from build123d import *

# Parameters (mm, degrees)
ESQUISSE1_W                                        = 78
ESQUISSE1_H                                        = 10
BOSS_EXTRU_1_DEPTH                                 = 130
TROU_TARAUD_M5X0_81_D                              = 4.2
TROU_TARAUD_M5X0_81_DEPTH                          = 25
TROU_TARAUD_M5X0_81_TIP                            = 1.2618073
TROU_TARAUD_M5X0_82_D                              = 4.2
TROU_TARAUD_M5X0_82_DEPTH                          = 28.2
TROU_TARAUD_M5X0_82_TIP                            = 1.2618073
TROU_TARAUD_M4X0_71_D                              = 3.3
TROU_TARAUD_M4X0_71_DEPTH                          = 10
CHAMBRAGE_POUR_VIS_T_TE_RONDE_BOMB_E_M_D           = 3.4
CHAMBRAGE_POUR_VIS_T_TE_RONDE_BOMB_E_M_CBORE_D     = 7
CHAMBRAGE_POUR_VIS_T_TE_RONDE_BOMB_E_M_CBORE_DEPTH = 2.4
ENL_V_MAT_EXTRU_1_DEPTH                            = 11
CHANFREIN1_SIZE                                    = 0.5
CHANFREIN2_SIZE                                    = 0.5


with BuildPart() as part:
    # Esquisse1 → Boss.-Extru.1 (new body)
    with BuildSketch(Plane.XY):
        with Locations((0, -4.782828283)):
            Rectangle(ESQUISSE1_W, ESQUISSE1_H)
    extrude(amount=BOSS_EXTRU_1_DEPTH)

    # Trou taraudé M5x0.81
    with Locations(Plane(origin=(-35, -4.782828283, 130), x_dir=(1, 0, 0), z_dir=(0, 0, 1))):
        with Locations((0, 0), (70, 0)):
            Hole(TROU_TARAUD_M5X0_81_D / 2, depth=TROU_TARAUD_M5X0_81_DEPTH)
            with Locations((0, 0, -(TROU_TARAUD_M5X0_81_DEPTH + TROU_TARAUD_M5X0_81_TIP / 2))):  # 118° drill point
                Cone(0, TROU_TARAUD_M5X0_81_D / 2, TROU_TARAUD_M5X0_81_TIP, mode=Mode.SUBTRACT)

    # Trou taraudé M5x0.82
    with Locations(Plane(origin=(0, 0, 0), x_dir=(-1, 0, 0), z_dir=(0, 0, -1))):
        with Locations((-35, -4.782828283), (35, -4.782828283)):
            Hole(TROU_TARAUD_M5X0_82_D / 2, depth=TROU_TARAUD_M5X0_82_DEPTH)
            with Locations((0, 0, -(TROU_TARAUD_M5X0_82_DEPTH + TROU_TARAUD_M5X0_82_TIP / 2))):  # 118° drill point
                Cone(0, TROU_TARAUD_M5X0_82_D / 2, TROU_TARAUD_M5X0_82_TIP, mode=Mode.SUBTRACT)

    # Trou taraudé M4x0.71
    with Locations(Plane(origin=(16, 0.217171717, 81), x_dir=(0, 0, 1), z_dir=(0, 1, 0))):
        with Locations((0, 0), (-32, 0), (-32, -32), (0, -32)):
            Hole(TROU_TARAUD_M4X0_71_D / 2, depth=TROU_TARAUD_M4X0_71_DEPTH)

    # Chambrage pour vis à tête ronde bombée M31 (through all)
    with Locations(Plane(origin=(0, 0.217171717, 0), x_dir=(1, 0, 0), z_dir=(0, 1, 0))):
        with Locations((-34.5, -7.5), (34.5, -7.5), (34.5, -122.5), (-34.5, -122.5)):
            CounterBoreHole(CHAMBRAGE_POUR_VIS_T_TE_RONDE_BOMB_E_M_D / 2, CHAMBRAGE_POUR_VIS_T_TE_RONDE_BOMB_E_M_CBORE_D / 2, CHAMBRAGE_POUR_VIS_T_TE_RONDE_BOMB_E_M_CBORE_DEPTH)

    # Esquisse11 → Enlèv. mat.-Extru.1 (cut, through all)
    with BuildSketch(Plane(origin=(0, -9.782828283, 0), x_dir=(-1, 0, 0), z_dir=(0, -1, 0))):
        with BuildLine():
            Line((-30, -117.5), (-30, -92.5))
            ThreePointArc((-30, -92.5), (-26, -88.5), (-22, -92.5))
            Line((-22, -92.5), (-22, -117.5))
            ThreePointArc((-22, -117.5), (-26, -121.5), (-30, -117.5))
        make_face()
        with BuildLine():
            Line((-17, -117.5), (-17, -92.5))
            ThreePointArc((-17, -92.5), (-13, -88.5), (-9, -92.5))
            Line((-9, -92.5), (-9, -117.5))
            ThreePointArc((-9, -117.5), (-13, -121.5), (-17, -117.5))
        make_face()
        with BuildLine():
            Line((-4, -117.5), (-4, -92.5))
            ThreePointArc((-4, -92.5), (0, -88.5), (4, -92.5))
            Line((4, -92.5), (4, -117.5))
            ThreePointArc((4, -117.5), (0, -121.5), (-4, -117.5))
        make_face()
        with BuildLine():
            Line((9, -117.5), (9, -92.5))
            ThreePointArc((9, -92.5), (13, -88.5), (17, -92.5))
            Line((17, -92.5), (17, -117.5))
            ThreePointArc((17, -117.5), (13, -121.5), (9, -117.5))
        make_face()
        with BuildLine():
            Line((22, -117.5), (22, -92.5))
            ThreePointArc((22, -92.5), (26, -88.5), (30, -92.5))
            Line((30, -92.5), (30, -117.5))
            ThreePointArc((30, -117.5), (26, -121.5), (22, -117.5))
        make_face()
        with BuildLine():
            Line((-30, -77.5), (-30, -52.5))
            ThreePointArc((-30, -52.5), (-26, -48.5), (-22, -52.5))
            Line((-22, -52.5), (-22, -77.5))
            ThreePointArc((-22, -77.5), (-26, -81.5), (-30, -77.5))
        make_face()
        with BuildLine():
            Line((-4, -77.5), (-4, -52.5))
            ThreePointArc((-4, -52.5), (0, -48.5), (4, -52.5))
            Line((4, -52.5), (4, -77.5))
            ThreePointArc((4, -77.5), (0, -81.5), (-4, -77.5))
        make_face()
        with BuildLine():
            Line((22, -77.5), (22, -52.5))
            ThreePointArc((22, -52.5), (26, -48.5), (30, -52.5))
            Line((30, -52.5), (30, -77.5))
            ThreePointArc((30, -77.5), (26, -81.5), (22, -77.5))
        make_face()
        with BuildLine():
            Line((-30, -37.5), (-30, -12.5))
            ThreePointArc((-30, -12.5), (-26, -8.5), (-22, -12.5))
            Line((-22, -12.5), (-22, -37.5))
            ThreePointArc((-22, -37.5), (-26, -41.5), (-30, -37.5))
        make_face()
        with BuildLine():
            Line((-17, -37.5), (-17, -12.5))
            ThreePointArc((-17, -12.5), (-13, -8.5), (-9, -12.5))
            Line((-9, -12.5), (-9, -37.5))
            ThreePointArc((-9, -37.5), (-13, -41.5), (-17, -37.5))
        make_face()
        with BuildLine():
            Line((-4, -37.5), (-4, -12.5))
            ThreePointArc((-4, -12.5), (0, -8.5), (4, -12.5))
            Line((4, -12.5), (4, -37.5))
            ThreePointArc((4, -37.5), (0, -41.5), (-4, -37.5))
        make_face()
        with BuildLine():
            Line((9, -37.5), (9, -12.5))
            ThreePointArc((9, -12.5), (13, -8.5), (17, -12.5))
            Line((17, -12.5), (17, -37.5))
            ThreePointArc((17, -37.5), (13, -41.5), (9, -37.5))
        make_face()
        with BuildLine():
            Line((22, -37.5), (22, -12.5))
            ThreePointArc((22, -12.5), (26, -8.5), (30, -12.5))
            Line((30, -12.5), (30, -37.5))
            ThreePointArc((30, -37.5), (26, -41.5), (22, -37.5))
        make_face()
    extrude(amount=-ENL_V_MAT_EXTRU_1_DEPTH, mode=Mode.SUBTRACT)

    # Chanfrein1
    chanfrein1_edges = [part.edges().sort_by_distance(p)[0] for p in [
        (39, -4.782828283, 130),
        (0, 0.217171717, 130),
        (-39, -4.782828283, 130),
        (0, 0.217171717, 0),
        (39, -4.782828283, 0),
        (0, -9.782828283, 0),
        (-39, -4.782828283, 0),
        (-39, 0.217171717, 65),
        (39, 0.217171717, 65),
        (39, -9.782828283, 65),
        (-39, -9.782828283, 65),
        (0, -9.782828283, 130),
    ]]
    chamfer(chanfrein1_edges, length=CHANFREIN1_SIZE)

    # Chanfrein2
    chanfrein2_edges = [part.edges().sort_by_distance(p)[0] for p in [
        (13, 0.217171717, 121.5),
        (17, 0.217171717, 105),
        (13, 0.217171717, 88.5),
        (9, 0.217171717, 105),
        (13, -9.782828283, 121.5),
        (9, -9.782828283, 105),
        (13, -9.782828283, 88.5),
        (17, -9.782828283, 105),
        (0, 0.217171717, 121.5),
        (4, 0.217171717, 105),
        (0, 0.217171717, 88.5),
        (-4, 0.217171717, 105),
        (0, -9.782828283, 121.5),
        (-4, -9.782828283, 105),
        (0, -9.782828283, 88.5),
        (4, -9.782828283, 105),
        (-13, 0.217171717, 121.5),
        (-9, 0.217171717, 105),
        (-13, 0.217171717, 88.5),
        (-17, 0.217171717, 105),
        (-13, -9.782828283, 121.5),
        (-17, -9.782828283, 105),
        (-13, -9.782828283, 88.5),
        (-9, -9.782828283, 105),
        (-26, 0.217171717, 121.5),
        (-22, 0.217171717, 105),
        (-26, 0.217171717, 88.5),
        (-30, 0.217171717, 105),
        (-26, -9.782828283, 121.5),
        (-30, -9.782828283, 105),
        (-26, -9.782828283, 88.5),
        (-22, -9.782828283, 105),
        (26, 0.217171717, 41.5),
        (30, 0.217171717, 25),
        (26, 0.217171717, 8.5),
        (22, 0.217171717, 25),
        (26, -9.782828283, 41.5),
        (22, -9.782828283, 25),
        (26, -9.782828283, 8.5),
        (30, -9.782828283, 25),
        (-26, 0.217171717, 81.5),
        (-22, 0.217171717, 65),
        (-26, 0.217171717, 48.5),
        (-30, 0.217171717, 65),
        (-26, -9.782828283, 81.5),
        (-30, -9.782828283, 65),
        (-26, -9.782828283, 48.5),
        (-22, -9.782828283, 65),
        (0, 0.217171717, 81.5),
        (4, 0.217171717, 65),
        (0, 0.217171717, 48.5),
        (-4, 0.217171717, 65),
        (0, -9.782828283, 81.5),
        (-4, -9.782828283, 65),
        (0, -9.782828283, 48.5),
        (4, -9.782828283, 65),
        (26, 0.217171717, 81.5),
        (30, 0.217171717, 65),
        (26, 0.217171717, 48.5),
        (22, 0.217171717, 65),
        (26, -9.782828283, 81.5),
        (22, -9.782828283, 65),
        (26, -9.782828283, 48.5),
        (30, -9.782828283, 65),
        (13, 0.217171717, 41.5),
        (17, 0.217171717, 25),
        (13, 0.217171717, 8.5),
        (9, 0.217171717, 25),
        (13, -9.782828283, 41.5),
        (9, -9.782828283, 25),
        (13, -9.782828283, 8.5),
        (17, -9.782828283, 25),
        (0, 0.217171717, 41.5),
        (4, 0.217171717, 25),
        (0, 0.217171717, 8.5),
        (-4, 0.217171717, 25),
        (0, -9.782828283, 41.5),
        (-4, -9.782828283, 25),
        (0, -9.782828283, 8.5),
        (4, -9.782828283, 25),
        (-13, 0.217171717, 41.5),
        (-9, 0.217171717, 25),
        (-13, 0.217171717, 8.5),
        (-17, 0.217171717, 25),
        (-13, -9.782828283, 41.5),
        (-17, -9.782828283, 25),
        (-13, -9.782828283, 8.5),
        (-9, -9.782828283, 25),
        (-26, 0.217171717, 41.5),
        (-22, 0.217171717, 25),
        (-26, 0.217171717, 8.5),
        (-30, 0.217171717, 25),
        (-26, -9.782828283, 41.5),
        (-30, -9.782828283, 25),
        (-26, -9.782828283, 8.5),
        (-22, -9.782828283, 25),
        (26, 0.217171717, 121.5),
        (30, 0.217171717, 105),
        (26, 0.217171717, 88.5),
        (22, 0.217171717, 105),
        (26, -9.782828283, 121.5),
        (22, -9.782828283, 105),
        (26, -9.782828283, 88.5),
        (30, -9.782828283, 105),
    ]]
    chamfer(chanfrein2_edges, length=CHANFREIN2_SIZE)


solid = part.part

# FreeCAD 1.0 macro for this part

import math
import FreeCAD as App
import Part
import Sketcher
from FreeCAD import Vector


def edges_at(feature, points):
    """Names of the edges that pass closest to the given points."""
    edges = feature.Shape.Edges
    near = lambda p: min(range(len(edges)), key=lambda i: edges[i].distToShape(Part.Vertex(*p))[0])
    return sorted({f"Edge{near(p) + 1}" for p in points})


def add_polygon(sketch, points):
    """Adds a closed chain of lines whose ends are joined by coincident constraints."""
    first, n = sketch.GeometryCount, len(points)
    for a, b in zip(points, points[1:] + points[:1]):
        sketch.addGeometry(Part.LineSegment(App.Vector(*a, 0), App.Vector(*b, 0)), False)
    for i in range(n):
        sketch.addConstraint(Sketcher.Constraint("Coincident", first + i, 2, first + (i + 1) % n, 1))

doc = App.newDocument("Part")
params = doc.addObject("Spreadsheet::Sheet", "Params")
for row, (alias, value) in enumerate([
    ("sketch1_width", "78 mm"),
    ("sketch1_height", "10 mm"),
    ("pad1_length", "130 mm"),
    ("sketch2_diameter", "4.2 mm"),
    ("hole_diameter", "4.2 mm"),
    ("hole_depth", "25 mm"),
    ("sketch3_diameter", "4.2 mm"),
    ("hole2_diameter", "4.2 mm"),
    ("hole2_depth", "28.2 mm"),
    ("sketch4_diameter", "3.3 mm"),
    ("hole3_diameter", "3.3 mm"),
    ("hole3_depth", "10 mm"),
    ("sketch5_diameter", "3.4 mm"),
    ("hole4_diameter", "3.4 mm"),
    ("hole4_cbore_diameter", "7 mm"),
    ("hole4_cbore_depth", "2.4 mm"),
    ("sketch6_radius", "4 mm"),
    ("sketch6_height", "25 mm"),
    ("chamfer_size", "0.5 mm"),
    ("chamfer2_size", "0.5 mm"),
], start=1):
    params.set(f"A{row}", alias)
    params.set(f"B{row}", "=" + value)
    params.setAlias(f"B{row}", alias)

body = doc.addObject("PartDesign::Body", "Body")

sketch1 = body.newObject("Sketcher::SketchObject", "Sketch")
sketch1.AttachmentSupport = (doc.getObject("XY_Plane"), [""])
sketch1.MapMode = "FlatFace"
add_polygon(sketch1, [(-39, 0), (-39, -10), (39, -10), (39, 0)])
sketch1.addConstraint([
    Sketcher.Constraint("Vertical", 0),
    Sketcher.Constraint("Horizontal", 1),
    Sketcher.Constraint("Vertical", 2),
    Sketcher.Constraint("Horizontal", 3),
    Sketcher.Constraint("DistanceX", 1, 1, 1, 2, 78.0),
    Sketcher.Constraint("DistanceY", 0, 2, 0, 1, 10.0),
    Sketcher.Constraint("DistanceX", 0, 2, -1, 1, 39.0),
    Sketcher.Constraint("DistanceY", 0, 2, -1, 1, 9.782828),
])
sketch1.setExpression("Constraints[8]", "Params.sketch1_width")
sketch1.setExpression("Constraints[9]", "Params.sketch1_height")
pad1 = body.newObject("PartDesign::Pad", "Pad")
pad1.Profile = sketch1
pad1.setExpression("Length", "Params.pad1_length")

sketch2 = body.newObject("Sketcher::SketchObject", "Sketch001")
sketch2.AttachmentSupport = (doc.getObject("XY_Plane"), [""])
sketch2.MapMode = "FlatFace"
sketch2.AttachmentOffset = App.Placement(Vector(0, 0, 130), App.Rotation())
sketch2.addGeometry([
    Part.Circle(Vector(-35, -4.8, 0), Vector(0, 0, 1), 2.1),
    Part.Circle(Vector(35, -4.8, 0), Vector(0, 0, 1), 2.1),
], False)
sketch2.addConstraint([
    Sketcher.Constraint("Equal", 0, 1),
    Sketcher.Constraint("Symmetric", 0, 3, 1, 3, -2),
    Sketcher.Constraint("Diameter", 0, 4.2),
    Sketcher.Constraint("DistanceX", 0, 3, -1, 1, 35.0),
    Sketcher.Constraint("DistanceY", 0, 3, -1, 1, 4.782828),
])
sketch2.setExpression("Constraints[2]", "Params.sketch2_diameter")
doc.recompute()
hole = body.newObject("PartDesign::Hole", "Hole")
hole.Profile = sketch2
hole.ThreadType = "None"
hole.setExpression("Diameter", "Params.hole_diameter")
hole.DepthType = "Dimension"
hole.setExpression("Depth", "Params.hole_depth")
hole.DrillPoint = "Angled"
hole.DrillPointAngle = 118

sketch3 = body.newObject("Sketcher::SketchObject", "Sketch002")
sketch3.AttachmentSupport = (doc.getObject("XY_Plane"), [""])
sketch3.MapMode = "FlatFace"
sketch3.addGeometry([
    Part.Circle(Vector(35, -4.8, 0), Vector(0, 0, 1), 2.1),
    Part.Circle(Vector(-35, -4.8, 0), Vector(0, 0, 1), 2.1),
], False)
sketch3.addConstraint([
    Sketcher.Constraint("Equal", 0, 1),
    Sketcher.Constraint("Symmetric", 0, 3, 1, 3, -2),
    Sketcher.Constraint("Diameter", 0, 4.2),
    Sketcher.Constraint("DistanceX", -1, 1, 0, 3, 35.0),
    Sketcher.Constraint("DistanceY", 0, 3, -1, 1, 4.782828),
])
sketch3.setExpression("Constraints[2]", "Params.sketch3_diameter")
doc.recompute()
hole2 = body.newObject("PartDesign::Hole", "Hole001")
hole2.Profile = sketch3
hole2.ThreadType = "None"
hole2.setExpression("Diameter", "Params.hole2_diameter")
hole2.DepthType = "Dimension"
hole2.setExpression("Depth", "Params.hole2_depth")
hole2.DrillPoint = "Angled"
hole2.DrillPointAngle = 118
hole2.Reversed = True

sketch4 = body.newObject("Sketcher::SketchObject", "Sketch003")
sketch4.AttachmentSupport = (doc.getObject("XZ_Plane"), [""])
sketch4.MapMode = "FlatFace"
sketch4.AttachmentOffset = App.Placement(Vector(0, 0, -0.217172), App.Rotation())
sketch4.addGeometry([
    Part.Circle(Vector(16, 81, 0), Vector(0, 0, 1), 1.6),
    Part.Circle(Vector(16, 49, 0), Vector(0, 0, 1), 1.6),
    Part.Circle(Vector(-16, 49, 0), Vector(0, 0, 1), 1.6),
    Part.Circle(Vector(-16, 81, 0), Vector(0, 0, 1), 1.6),
], False)
sketch4.addConstraint([
    Sketcher.Constraint("Equal", 0, 1),
    Sketcher.Constraint("Equal", 1, 2),
    Sketcher.Constraint("Equal", 2, 3),
    Sketcher.Constraint("Symmetric", 1, 3, 2, 3, -2),
    Sketcher.Constraint("Symmetric", 0, 3, 3, 3, -2),
    Sketcher.Constraint("Vertical", 0, 3, 1, 3),
    Sketcher.Constraint("Diameter", 0, 3.3),
    Sketcher.Constraint("DistanceX", -1, 1, 0, 3, 16.0),
    Sketcher.Constraint("DistanceY", -1, 1, 0, 3, 81.0),
    Sketcher.Constraint("DistanceY", -1, 1, 1, 3, 49.0),
])
sketch4.setExpression("Constraints[6]", "Params.sketch4_diameter")
doc.recompute()
hole3 = body.newObject("PartDesign::Hole", "Hole002")
hole3.Profile = sketch4
hole3.ThreadType = "None"
hole3.setExpression("Diameter", "Params.hole3_diameter")
hole3.DepthType = "Dimension"
hole3.setExpression("Depth", "Params.hole3_depth")
hole3.DrillPoint = "Flat"
hole3.Reversed = True

sketch5 = body.newObject("Sketcher::SketchObject", "Sketch004")
sketch5.AttachmentSupport = (doc.getObject("XZ_Plane"), [""])
sketch5.MapMode = "FlatFace"
sketch5.AttachmentOffset = App.Placement(Vector(0, 0, -0.217172), App.Rotation())
sketch5.addGeometry([
    Part.Circle(Vector(-34.5, 7.5, 0), Vector(0, 0, 1), 1.7),
    Part.Circle(Vector(34.5, 7.5, 0), Vector(0, 0, 1), 1.7),
    Part.Circle(Vector(34.5, 122.5, 0), Vector(0, 0, 1), 1.7),
    Part.Circle(Vector(-34.5, 122.5, 0), Vector(0, 0, 1), 1.7),
], False)
sketch5.addConstraint([
    Sketcher.Constraint("Equal", 0, 1),
    Sketcher.Constraint("Equal", 1, 2),
    Sketcher.Constraint("Equal", 2, 3),
    Sketcher.Constraint("Symmetric", 0, 3, 1, 3, -2),
    Sketcher.Constraint("Symmetric", 2, 3, 3, 3, -2),
    Sketcher.Constraint("Vertical", 1, 3, 2, 3),
    Sketcher.Constraint("Diameter", 0, 3.4),
    Sketcher.Constraint("DistanceX", 0, 3, 1, 3, 69.0),
    Sketcher.Constraint("DistanceY", 1, 3, 2, 3, 115.0),
    Sketcher.Constraint("DistanceY", -1, 1, 0, 3, 7.5),
])
sketch5.setExpression("Constraints[6]", "Params.sketch5_diameter")
doc.recompute()
hole4 = body.newObject("PartDesign::Hole", "Hole003")
hole4.Profile = sketch5
hole4.ThreadType = "None"
hole4.setExpression("Diameter", "Params.hole4_diameter")
hole4.DepthType = "ThroughAll"
hole4.HoleCutType = "Counterbore"
hole4.setExpression("HoleCutDiameter", "Params.hole4_cbore_diameter")
hole4.setExpression("HoleCutDepth", "Params.hole4_cbore_depth")
hole4.Reversed = True

sketch6 = body.newObject("Sketcher::SketchObject", "Sketch005")
sketch6.AttachmentSupport = (doc.getObject("XZ_Plane"), [""])
sketch6.MapMode = "FlatFace"
sketch6.AttachmentOffset = App.Placement(Vector(0, 0, 9.782828), App.Rotation())
sketch6.addGeometry([
    Part.LineSegment(Vector(30, 92.5, 0), Vector(30, 117.5, 0)),
    Part.ArcOfCircle(Part.Circle(Vector(26, 117.5, 0), Vector(0, 0, 1), 4), math.radians(0), math.radians(180)),
    Part.LineSegment(Vector(22, 117.5, 0), Vector(22, 92.5, 0)),
    Part.ArcOfCircle(Part.Circle(Vector(26, 92.5, 0), Vector(0, 0, 1), 4), math.radians(180), math.radians(360)),
    Part.LineSegment(Vector(17, 92.5, 0), Vector(17, 117.5, 0)),
    Part.ArcOfCircle(Part.Circle(Vector(13, 117.5, 0), Vector(0, 0, 1), 4), math.radians(0), math.radians(180)),
    Part.LineSegment(Vector(9, 117.5, 0), Vector(9, 92.5, 0)),
    Part.ArcOfCircle(Part.Circle(Vector(13, 92.5, 0), Vector(0, 0, 1), 4), math.radians(180), math.radians(360)),
    Part.LineSegment(Vector(4, 92.5, 0), Vector(4, 117.5, 0)),
    Part.ArcOfCircle(Part.Circle(Vector(0, 117.5, 0), Vector(0, 0, 1), 4), math.radians(0), math.radians(180)),
    Part.LineSegment(Vector(-4, 117.5, 0), Vector(-4, 92.5, 0)),
    Part.ArcOfCircle(Part.Circle(Vector(0, 92.5, 0), Vector(0, 0, 1), 4), math.radians(180), math.radians(360)),
    Part.LineSegment(Vector(-9, 92.5, 0), Vector(-9, 117.5, 0)),
    Part.ArcOfCircle(Part.Circle(Vector(-13, 117.5, 0), Vector(0, 0, 1), 4), math.radians(0), math.radians(180)),
    Part.LineSegment(Vector(-17, 117.5, 0), Vector(-17, 92.5, 0)),
    Part.ArcOfCircle(Part.Circle(Vector(-13, 92.5, 0), Vector(0, 0, 1), 4), math.radians(180), math.radians(360)),
    Part.LineSegment(Vector(-22, 92.5, 0), Vector(-22, 117.5, 0)),
    Part.ArcOfCircle(Part.Circle(Vector(-26, 117.5, 0), Vector(0, 0, 1), 4), math.radians(0), math.radians(180)),
    Part.LineSegment(Vector(-30, 117.5, 0), Vector(-30, 92.5, 0)),
    Part.ArcOfCircle(Part.Circle(Vector(-26, 92.5, 0), Vector(0, 0, 1), 4), math.radians(180), math.radians(360)),
    Part.LineSegment(Vector(30, 52.5, 0), Vector(30, 77.5, 0)),
    Part.ArcOfCircle(Part.Circle(Vector(26, 77.5, 0), Vector(0, 0, 1), 4), math.radians(0), math.radians(180)),
    Part.LineSegment(Vector(22, 77.5, 0), Vector(22, 52.5, 0)),
    Part.ArcOfCircle(Part.Circle(Vector(26, 52.5, 0), Vector(0, 0, 1), 4), math.radians(180), math.radians(360)),
    Part.LineSegment(Vector(4, 52.5, 0), Vector(4, 77.5, 0)),
    Part.ArcOfCircle(Part.Circle(Vector(0, 77.5, 0), Vector(0, 0, 1), 4), math.radians(0), math.radians(180)),
    Part.LineSegment(Vector(-4, 77.5, 0), Vector(-4, 52.5, 0)),
    Part.ArcOfCircle(Part.Circle(Vector(0, 52.5, 0), Vector(0, 0, 1), 4), math.radians(180), math.radians(360)),
    Part.LineSegment(Vector(-22, 52.5, 0), Vector(-22, 77.5, 0)),
    Part.ArcOfCircle(Part.Circle(Vector(-26, 77.5, 0), Vector(0, 0, 1), 4), math.radians(0), math.radians(180)),
    Part.LineSegment(Vector(-30, 77.5, 0), Vector(-30, 52.5, 0)),
    Part.ArcOfCircle(Part.Circle(Vector(-26, 52.5, 0), Vector(0, 0, 1), 4), math.radians(180), math.radians(360)),
    Part.LineSegment(Vector(30, 12.5, 0), Vector(30, 37.5, 0)),
    Part.ArcOfCircle(Part.Circle(Vector(26, 37.5, 0), Vector(0, 0, 1), 4), math.radians(0), math.radians(180)),
    Part.LineSegment(Vector(22, 37.5, 0), Vector(22, 12.5, 0)),
    Part.ArcOfCircle(Part.Circle(Vector(26, 12.5, 0), Vector(0, 0, 1), 4), math.radians(180), math.radians(360)),
    Part.LineSegment(Vector(17, 12.5, 0), Vector(17, 37.5, 0)),
    Part.ArcOfCircle(Part.Circle(Vector(13, 37.5, 0), Vector(0, 0, 1), 4), math.radians(0), math.radians(180)),
    Part.LineSegment(Vector(9, 37.5, 0), Vector(9, 12.5, 0)),
    Part.ArcOfCircle(Part.Circle(Vector(13, 12.5, 0), Vector(0, 0, 1), 4), math.radians(180), math.radians(360)),
    Part.LineSegment(Vector(4, 12.5, 0), Vector(4, 37.5, 0)),
    Part.ArcOfCircle(Part.Circle(Vector(0, 37.5, 0), Vector(0, 0, 1), 4), math.radians(0), math.radians(180)),
    Part.LineSegment(Vector(-4, 37.5, 0), Vector(-4, 12.5, 0)),
    Part.ArcOfCircle(Part.Circle(Vector(0, 12.5, 0), Vector(0, 0, 1), 4), math.radians(180), math.radians(360)),
    Part.LineSegment(Vector(-9, 12.5, 0), Vector(-9, 37.5, 0)),
    Part.ArcOfCircle(Part.Circle(Vector(-13, 37.5, 0), Vector(0, 0, 1), 4), math.radians(0), math.radians(180)),
    Part.LineSegment(Vector(-17, 37.5, 0), Vector(-17, 12.5, 0)),
    Part.ArcOfCircle(Part.Circle(Vector(-13, 12.5, 0), Vector(0, 0, 1), 4), math.radians(180), math.radians(360)),
    Part.LineSegment(Vector(-22, 12.5, 0), Vector(-22, 37.5, 0)),
    Part.ArcOfCircle(Part.Circle(Vector(-26, 37.5, 0), Vector(0, 0, 1), 4), math.radians(0), math.radians(180)),
    Part.LineSegment(Vector(-30, 37.5, 0), Vector(-30, 12.5, 0)),
    Part.ArcOfCircle(Part.Circle(Vector(-26, 12.5, 0), Vector(0, 0, 1), 4), math.radians(180), math.radians(360)),
], False)
sketch6.addConstraint([
    Sketcher.Constraint("Tangent", 0, 2, 1, 1),
    Sketcher.Constraint("Tangent", 1, 2, 2, 1),
    Sketcher.Constraint("Tangent", 2, 2, 3, 1),
    Sketcher.Constraint("Tangent", 3, 2, 0, 1),
    Sketcher.Constraint("Tangent", 4, 2, 5, 1),
    Sketcher.Constraint("Tangent", 5, 2, 6, 1),
    Sketcher.Constraint("Tangent", 6, 2, 7, 1),
    Sketcher.Constraint("Tangent", 7, 2, 4, 1),
    Sketcher.Constraint("Tangent", 8, 2, 9, 1),
    Sketcher.Constraint("Tangent", 9, 2, 10, 1),
    Sketcher.Constraint("Tangent", 10, 2, 11, 1),
    Sketcher.Constraint("Tangent", 11, 2, 8, 1),
    Sketcher.Constraint("Tangent", 12, 2, 13, 1),
    Sketcher.Constraint("Tangent", 13, 2, 14, 1),
    Sketcher.Constraint("Tangent", 14, 2, 15, 1),
    Sketcher.Constraint("Tangent", 15, 2, 12, 1),
    Sketcher.Constraint("Tangent", 16, 2, 17, 1),
    Sketcher.Constraint("Tangent", 17, 2, 18, 1),
    Sketcher.Constraint("Tangent", 18, 2, 19, 1),
    Sketcher.Constraint("Tangent", 19, 2, 16, 1),
    Sketcher.Constraint("Tangent", 20, 2, 21, 1),
    Sketcher.Constraint("Tangent", 21, 2, 22, 1),
    Sketcher.Constraint("Tangent", 22, 2, 23, 1),
    Sketcher.Constraint("Tangent", 23, 2, 20, 1),
    Sketcher.Constraint("Tangent", 24, 2, 25, 1),
    Sketcher.Constraint("Tangent", 25, 2, 26, 1),
    Sketcher.Constraint("Tangent", 26, 2, 27, 1),
    Sketcher.Constraint("Tangent", 27, 2, 24, 1),
    Sketcher.Constraint("Tangent", 28, 2, 29, 1),
    Sketcher.Constraint("Tangent", 29, 2, 30, 1),
    Sketcher.Constraint("Tangent", 30, 2, 31, 1),
    Sketcher.Constraint("Tangent", 31, 2, 28, 1),
    Sketcher.Constraint("Tangent", 32, 2, 33, 1),
    Sketcher.Constraint("Tangent", 33, 2, 34, 1),
    Sketcher.Constraint("Tangent", 34, 2, 35, 1),
    Sketcher.Constraint("Tangent", 35, 2, 32, 1),
    Sketcher.Constraint("Tangent", 36, 2, 37, 1),
    Sketcher.Constraint("Tangent", 37, 2, 38, 1),
    Sketcher.Constraint("Tangent", 38, 2, 39, 1),
    Sketcher.Constraint("Tangent", 39, 2, 36, 1),
    Sketcher.Constraint("Tangent", 40, 2, 41, 1),
    Sketcher.Constraint("Tangent", 41, 2, 42, 1),
    Sketcher.Constraint("Tangent", 42, 2, 43, 1),
    Sketcher.Constraint("Tangent", 43, 2, 40, 1),
    Sketcher.Constraint("Tangent", 44, 2, 45, 1),
    Sketcher.Constraint("Tangent", 45, 2, 46, 1),
    Sketcher.Constraint("Tangent", 46, 2, 47, 1),
    Sketcher.Constraint("Tangent", 47, 2, 44, 1),
    Sketcher.Constraint("Tangent", 48, 2, 49, 1),
    Sketcher.Constraint("Tangent", 49, 2, 50, 1),
    Sketcher.Constraint("Tangent", 50, 2, 51, 1),
    Sketcher.Constraint("Tangent", 51, 2, 48, 1),
    Sketcher.Constraint("Vertical", 0),
    Sketcher.Constraint("Vertical", 2),
    Sketcher.Constraint("Vertical", 4),
    Sketcher.Constraint("Vertical", 6),
    Sketcher.Constraint("Vertical", 8),
    Sketcher.Constraint("Vertical", 10),
    Sketcher.Constraint("Vertical", 12),
    Sketcher.Constraint("Vertical", 14),
    Sketcher.Constraint("Vertical", 16),
    Sketcher.Constraint("Vertical", 18),
    Sketcher.Constraint("Vertical", 20),
    Sketcher.Constraint("Vertical", 22),
    Sketcher.Constraint("Vertical", 24),
    Sketcher.Constraint("Vertical", 26),
    Sketcher.Constraint("Vertical", 28),
    Sketcher.Constraint("Vertical", 30),
    Sketcher.Constraint("Vertical", 32),
    Sketcher.Constraint("Vertical", 34),
    Sketcher.Constraint("Vertical", 36),
    Sketcher.Constraint("Vertical", 38),
    Sketcher.Constraint("Vertical", 40),
    Sketcher.Constraint("Vertical", 42),
    Sketcher.Constraint("Vertical", 44),
    Sketcher.Constraint("Vertical", 46),
    Sketcher.Constraint("Vertical", 48),
    Sketcher.Constraint("Vertical", 50),
    Sketcher.Constraint("Equal", 3, 5),
    Sketcher.Constraint("Equal", 7, 9),
    Sketcher.Constraint("Equal", 11, 13),
    Sketcher.Constraint("Equal", 15, 17),
    Sketcher.Constraint("Equal", 19, 21),
    Sketcher.Constraint("Equal", 23, 25),
    Sketcher.Constraint("Equal", 27, 29),
    Sketcher.Constraint("Equal", 31, 33),
    Sketcher.Constraint("Equal", 35, 37),
    Sketcher.Constraint("Equal", 39, 41),
    Sketcher.Constraint("Equal", 43, 45),
    Sketcher.Constraint("Equal", 47, 49),
    Sketcher.Constraint("Symmetric", 5, 3, 13, 3, -2),
    Sketcher.Constraint("Symmetric", 1, 3, 17, 3, -2),
    Sketcher.Constraint("Symmetric", 21, 3, 29, 3, -2),
    Sketcher.Constraint("Symmetric", 37, 3, 45, 3, -2),
    Sketcher.Constraint("Symmetric", 33, 3, 49, 3, -2),
    Sketcher.Constraint("PointOnObject", 9, 3, -2),
    Sketcher.Constraint("PointOnObject", 25, 3, -2),
    Sketcher.Constraint("PointOnObject", 41, 3, -2),
    Sketcher.Constraint("Horizontal", 1, 3, 5, 3),
    Sketcher.Constraint("Horizontal", 3, 3, 7, 3),
    Sketcher.Constraint("Horizontal", 5, 3, 9, 3),
    Sketcher.Constraint("Horizontal", 7, 3, 11, 3),
    Sketcher.Constraint("Horizontal", 11, 3, 15, 3),
    Sketcher.Constraint("Horizontal", 15, 3, 19, 3),
    Sketcher.Constraint("Horizontal", 21, 3, 25, 3),
    Sketcher.Constraint("Horizontal", 23, 3, 27, 3),
    Sketcher.Constraint("Horizontal", 27, 3, 31, 3),
    Sketcher.Constraint("Horizontal", 33, 3, 37, 3),
    Sketcher.Constraint("Horizontal", 35, 3, 39, 3),
    Sketcher.Constraint("Horizontal", 37, 3, 41, 3),
    Sketcher.Constraint("Horizontal", 39, 3, 43, 3),
    Sketcher.Constraint("Horizontal", 43, 3, 47, 3),
    Sketcher.Constraint("Horizontal", 47, 3, 51, 3),
    Sketcher.Constraint("Vertical", 3, 3, 21, 3),
    Sketcher.Constraint("Vertical", 23, 3, 33, 3),
    Sketcher.Constraint("Vertical", 7, 3, 37, 3),
    Sketcher.Constraint("Equal", 18, 20),
    Sketcher.Constraint("Equal", 30, 32),
    Sketcher.Constraint("Radius", 1, 4.0),
    Sketcher.Constraint("DistanceY", 0, 1, 0, 2, 25.0),
    Sketcher.Constraint("DistanceX", -1, 1, 1, 3, 26.0),
    Sketcher.Constraint("DistanceX", -1, 1, 5, 3, 13.0),
    Sketcher.Constraint("DistanceY", -1, 1, 1, 3, 117.5),
    Sketcher.Constraint("DistanceY", -1, 1, 21, 3, 77.5),
    Sketcher.Constraint("DistanceY", -1, 1, 33, 3, 37.5),
])
sketch6.setExpression("Constraints[118]", "Params.sketch6_radius")
sketch6.setExpression("Constraints[119]", "Params.sketch6_height")
pocket1 = body.newObject("PartDesign::Pocket", "Pocket")
pocket1.Profile = sketch6
pocket1.Type = "ThroughAll"
doc.recompute()

chamfer = body.newObject("PartDesign::Chamfer", "Chamfer")
chamfer.Base = (pocket1, edges_at(pocket1, [
    (39, -4.783, 130),
    (0, 0.217, 130),
    (-39, -4.783, 130),
    (0, 0.217, 0),
    (39, -4.783, 0),
    (0, -9.783, 0),
    (-39, -4.783, 0),
    (-39, 0.217, 65),
    (39, 0.217, 65),
    (39, -9.783, 65),
    (-39, -9.783, 65),
    (0, -9.783, 130),
]))
chamfer.setExpression("Size", "Params.chamfer_size")
doc.recompute()

chamfer2 = body.newObject("PartDesign::Chamfer", "Chamfer001")
chamfer2.Base = (chamfer, edges_at(chamfer, [
    (13, 0.217, 121.5),
    (17, 0.217, 105),
    (13, 0.217, 88.5),
    (9, 0.217, 105),
    (13, -9.783, 121.5),
    (9, -9.783, 105),
    (13, -9.783, 88.5),
    (17, -9.783, 105),
    (0, 0.217, 121.5),
    (4, 0.217, 105),
    (0, 0.217, 88.5),
    (-4, 0.217, 105),
    (0, -9.783, 121.5),
    (-4, -9.783, 105),
    (0, -9.783, 88.5),
    (4, -9.783, 105),
    (-13, 0.217, 121.5),
    (-9, 0.217, 105),
    (-13, 0.217, 88.5),
    (-17, 0.217, 105),
    (-13, -9.783, 121.5),
    (-17, -9.783, 105),
    (-13, -9.783, 88.5),
    (-9, -9.783, 105),
    (-26, 0.217, 121.5),
    (-22, 0.217, 105),
    (-26, 0.217, 88.5),
    (-30, 0.217, 105),
    (-26, -9.783, 121.5),
    (-30, -9.783, 105),
    (-26, -9.783, 88.5),
    (-22, -9.783, 105),
    (26, 0.217, 41.5),
    (30, 0.217, 25),
    (26, 0.217, 8.5),
    (22, 0.217, 25),
    (26, -9.783, 41.5),
    (22, -9.783, 25),
    (26, -9.783, 8.5),
    (30, -9.783, 25),
    (-26, 0.217, 81.5),
    (-22, 0.217, 65),
    (-26, 0.217, 48.5),
    (-30, 0.217, 65),
    (-26, -9.783, 81.5),
    (-30, -9.783, 65),
    (-26, -9.783, 48.5),
    (-22, -9.783, 65),
    (0, 0.217, 81.5),
    (4, 0.217, 65),
    (0, 0.217, 48.5),
    (-4, 0.217, 65),
    (0, -9.783, 81.5),
    (-4, -9.783, 65),
    (0, -9.783, 48.5),
    (4, -9.783, 65),
    (26, 0.217, 81.5),
    (30, 0.217, 65),
    (26, 0.217, 48.5),
    (22, 0.217, 65),
    (26, -9.783, 81.5),
    (22, -9.783, 65),
    (26, -9.783, 48.5),
    (30, -9.783, 65),
    (13, 0.217, 41.5),
    (17, 0.217, 25),
    (13, 0.217, 8.5),
    (9, 0.217, 25),
    (13, -9.783, 41.5),
    (9, -9.783, 25),
    (13, -9.783, 8.5),
    (17, -9.783, 25),
    (0, 0.217, 41.5),
    (4, 0.217, 25),
    (0, 0.217, 8.5),
    (-4, 0.217, 25),
    (0, -9.783, 41.5),
    (-4, -9.783, 25),
    (0, -9.783, 8.5),
    (4, -9.783, 25),
    (-13, 0.217, 41.5),
    (-9, 0.217, 25),
    (-13, 0.217, 8.5),
    (-17, 0.217, 25),
    (-13, -9.783, 41.5),
    (-17, -9.783, 25),
    (-13, -9.783, 8.5),
    (-9, -9.783, 25),
    (-26, 0.217, 41.5),
    (-22, 0.217, 25),
    (-26, 0.217, 8.5),
    (-30, 0.217, 25),
    (-26, -9.783, 41.5),
    (-30, -9.783, 25),
    (-26, -9.783, 8.5),
    (-22, -9.783, 25),
    (26, 0.217, 121.5),
    (30, 0.217, 105),
    (26, 0.217, 88.5),
    (22, 0.217, 105),
    (26, -9.783, 121.5),
    (22, -9.783, 105),
    (26, -9.783, 88.5),
    (30, -9.783, 105),
]))
chamfer2.setExpression("Size", "Params.chamfer2_size")

doc.recompute()
